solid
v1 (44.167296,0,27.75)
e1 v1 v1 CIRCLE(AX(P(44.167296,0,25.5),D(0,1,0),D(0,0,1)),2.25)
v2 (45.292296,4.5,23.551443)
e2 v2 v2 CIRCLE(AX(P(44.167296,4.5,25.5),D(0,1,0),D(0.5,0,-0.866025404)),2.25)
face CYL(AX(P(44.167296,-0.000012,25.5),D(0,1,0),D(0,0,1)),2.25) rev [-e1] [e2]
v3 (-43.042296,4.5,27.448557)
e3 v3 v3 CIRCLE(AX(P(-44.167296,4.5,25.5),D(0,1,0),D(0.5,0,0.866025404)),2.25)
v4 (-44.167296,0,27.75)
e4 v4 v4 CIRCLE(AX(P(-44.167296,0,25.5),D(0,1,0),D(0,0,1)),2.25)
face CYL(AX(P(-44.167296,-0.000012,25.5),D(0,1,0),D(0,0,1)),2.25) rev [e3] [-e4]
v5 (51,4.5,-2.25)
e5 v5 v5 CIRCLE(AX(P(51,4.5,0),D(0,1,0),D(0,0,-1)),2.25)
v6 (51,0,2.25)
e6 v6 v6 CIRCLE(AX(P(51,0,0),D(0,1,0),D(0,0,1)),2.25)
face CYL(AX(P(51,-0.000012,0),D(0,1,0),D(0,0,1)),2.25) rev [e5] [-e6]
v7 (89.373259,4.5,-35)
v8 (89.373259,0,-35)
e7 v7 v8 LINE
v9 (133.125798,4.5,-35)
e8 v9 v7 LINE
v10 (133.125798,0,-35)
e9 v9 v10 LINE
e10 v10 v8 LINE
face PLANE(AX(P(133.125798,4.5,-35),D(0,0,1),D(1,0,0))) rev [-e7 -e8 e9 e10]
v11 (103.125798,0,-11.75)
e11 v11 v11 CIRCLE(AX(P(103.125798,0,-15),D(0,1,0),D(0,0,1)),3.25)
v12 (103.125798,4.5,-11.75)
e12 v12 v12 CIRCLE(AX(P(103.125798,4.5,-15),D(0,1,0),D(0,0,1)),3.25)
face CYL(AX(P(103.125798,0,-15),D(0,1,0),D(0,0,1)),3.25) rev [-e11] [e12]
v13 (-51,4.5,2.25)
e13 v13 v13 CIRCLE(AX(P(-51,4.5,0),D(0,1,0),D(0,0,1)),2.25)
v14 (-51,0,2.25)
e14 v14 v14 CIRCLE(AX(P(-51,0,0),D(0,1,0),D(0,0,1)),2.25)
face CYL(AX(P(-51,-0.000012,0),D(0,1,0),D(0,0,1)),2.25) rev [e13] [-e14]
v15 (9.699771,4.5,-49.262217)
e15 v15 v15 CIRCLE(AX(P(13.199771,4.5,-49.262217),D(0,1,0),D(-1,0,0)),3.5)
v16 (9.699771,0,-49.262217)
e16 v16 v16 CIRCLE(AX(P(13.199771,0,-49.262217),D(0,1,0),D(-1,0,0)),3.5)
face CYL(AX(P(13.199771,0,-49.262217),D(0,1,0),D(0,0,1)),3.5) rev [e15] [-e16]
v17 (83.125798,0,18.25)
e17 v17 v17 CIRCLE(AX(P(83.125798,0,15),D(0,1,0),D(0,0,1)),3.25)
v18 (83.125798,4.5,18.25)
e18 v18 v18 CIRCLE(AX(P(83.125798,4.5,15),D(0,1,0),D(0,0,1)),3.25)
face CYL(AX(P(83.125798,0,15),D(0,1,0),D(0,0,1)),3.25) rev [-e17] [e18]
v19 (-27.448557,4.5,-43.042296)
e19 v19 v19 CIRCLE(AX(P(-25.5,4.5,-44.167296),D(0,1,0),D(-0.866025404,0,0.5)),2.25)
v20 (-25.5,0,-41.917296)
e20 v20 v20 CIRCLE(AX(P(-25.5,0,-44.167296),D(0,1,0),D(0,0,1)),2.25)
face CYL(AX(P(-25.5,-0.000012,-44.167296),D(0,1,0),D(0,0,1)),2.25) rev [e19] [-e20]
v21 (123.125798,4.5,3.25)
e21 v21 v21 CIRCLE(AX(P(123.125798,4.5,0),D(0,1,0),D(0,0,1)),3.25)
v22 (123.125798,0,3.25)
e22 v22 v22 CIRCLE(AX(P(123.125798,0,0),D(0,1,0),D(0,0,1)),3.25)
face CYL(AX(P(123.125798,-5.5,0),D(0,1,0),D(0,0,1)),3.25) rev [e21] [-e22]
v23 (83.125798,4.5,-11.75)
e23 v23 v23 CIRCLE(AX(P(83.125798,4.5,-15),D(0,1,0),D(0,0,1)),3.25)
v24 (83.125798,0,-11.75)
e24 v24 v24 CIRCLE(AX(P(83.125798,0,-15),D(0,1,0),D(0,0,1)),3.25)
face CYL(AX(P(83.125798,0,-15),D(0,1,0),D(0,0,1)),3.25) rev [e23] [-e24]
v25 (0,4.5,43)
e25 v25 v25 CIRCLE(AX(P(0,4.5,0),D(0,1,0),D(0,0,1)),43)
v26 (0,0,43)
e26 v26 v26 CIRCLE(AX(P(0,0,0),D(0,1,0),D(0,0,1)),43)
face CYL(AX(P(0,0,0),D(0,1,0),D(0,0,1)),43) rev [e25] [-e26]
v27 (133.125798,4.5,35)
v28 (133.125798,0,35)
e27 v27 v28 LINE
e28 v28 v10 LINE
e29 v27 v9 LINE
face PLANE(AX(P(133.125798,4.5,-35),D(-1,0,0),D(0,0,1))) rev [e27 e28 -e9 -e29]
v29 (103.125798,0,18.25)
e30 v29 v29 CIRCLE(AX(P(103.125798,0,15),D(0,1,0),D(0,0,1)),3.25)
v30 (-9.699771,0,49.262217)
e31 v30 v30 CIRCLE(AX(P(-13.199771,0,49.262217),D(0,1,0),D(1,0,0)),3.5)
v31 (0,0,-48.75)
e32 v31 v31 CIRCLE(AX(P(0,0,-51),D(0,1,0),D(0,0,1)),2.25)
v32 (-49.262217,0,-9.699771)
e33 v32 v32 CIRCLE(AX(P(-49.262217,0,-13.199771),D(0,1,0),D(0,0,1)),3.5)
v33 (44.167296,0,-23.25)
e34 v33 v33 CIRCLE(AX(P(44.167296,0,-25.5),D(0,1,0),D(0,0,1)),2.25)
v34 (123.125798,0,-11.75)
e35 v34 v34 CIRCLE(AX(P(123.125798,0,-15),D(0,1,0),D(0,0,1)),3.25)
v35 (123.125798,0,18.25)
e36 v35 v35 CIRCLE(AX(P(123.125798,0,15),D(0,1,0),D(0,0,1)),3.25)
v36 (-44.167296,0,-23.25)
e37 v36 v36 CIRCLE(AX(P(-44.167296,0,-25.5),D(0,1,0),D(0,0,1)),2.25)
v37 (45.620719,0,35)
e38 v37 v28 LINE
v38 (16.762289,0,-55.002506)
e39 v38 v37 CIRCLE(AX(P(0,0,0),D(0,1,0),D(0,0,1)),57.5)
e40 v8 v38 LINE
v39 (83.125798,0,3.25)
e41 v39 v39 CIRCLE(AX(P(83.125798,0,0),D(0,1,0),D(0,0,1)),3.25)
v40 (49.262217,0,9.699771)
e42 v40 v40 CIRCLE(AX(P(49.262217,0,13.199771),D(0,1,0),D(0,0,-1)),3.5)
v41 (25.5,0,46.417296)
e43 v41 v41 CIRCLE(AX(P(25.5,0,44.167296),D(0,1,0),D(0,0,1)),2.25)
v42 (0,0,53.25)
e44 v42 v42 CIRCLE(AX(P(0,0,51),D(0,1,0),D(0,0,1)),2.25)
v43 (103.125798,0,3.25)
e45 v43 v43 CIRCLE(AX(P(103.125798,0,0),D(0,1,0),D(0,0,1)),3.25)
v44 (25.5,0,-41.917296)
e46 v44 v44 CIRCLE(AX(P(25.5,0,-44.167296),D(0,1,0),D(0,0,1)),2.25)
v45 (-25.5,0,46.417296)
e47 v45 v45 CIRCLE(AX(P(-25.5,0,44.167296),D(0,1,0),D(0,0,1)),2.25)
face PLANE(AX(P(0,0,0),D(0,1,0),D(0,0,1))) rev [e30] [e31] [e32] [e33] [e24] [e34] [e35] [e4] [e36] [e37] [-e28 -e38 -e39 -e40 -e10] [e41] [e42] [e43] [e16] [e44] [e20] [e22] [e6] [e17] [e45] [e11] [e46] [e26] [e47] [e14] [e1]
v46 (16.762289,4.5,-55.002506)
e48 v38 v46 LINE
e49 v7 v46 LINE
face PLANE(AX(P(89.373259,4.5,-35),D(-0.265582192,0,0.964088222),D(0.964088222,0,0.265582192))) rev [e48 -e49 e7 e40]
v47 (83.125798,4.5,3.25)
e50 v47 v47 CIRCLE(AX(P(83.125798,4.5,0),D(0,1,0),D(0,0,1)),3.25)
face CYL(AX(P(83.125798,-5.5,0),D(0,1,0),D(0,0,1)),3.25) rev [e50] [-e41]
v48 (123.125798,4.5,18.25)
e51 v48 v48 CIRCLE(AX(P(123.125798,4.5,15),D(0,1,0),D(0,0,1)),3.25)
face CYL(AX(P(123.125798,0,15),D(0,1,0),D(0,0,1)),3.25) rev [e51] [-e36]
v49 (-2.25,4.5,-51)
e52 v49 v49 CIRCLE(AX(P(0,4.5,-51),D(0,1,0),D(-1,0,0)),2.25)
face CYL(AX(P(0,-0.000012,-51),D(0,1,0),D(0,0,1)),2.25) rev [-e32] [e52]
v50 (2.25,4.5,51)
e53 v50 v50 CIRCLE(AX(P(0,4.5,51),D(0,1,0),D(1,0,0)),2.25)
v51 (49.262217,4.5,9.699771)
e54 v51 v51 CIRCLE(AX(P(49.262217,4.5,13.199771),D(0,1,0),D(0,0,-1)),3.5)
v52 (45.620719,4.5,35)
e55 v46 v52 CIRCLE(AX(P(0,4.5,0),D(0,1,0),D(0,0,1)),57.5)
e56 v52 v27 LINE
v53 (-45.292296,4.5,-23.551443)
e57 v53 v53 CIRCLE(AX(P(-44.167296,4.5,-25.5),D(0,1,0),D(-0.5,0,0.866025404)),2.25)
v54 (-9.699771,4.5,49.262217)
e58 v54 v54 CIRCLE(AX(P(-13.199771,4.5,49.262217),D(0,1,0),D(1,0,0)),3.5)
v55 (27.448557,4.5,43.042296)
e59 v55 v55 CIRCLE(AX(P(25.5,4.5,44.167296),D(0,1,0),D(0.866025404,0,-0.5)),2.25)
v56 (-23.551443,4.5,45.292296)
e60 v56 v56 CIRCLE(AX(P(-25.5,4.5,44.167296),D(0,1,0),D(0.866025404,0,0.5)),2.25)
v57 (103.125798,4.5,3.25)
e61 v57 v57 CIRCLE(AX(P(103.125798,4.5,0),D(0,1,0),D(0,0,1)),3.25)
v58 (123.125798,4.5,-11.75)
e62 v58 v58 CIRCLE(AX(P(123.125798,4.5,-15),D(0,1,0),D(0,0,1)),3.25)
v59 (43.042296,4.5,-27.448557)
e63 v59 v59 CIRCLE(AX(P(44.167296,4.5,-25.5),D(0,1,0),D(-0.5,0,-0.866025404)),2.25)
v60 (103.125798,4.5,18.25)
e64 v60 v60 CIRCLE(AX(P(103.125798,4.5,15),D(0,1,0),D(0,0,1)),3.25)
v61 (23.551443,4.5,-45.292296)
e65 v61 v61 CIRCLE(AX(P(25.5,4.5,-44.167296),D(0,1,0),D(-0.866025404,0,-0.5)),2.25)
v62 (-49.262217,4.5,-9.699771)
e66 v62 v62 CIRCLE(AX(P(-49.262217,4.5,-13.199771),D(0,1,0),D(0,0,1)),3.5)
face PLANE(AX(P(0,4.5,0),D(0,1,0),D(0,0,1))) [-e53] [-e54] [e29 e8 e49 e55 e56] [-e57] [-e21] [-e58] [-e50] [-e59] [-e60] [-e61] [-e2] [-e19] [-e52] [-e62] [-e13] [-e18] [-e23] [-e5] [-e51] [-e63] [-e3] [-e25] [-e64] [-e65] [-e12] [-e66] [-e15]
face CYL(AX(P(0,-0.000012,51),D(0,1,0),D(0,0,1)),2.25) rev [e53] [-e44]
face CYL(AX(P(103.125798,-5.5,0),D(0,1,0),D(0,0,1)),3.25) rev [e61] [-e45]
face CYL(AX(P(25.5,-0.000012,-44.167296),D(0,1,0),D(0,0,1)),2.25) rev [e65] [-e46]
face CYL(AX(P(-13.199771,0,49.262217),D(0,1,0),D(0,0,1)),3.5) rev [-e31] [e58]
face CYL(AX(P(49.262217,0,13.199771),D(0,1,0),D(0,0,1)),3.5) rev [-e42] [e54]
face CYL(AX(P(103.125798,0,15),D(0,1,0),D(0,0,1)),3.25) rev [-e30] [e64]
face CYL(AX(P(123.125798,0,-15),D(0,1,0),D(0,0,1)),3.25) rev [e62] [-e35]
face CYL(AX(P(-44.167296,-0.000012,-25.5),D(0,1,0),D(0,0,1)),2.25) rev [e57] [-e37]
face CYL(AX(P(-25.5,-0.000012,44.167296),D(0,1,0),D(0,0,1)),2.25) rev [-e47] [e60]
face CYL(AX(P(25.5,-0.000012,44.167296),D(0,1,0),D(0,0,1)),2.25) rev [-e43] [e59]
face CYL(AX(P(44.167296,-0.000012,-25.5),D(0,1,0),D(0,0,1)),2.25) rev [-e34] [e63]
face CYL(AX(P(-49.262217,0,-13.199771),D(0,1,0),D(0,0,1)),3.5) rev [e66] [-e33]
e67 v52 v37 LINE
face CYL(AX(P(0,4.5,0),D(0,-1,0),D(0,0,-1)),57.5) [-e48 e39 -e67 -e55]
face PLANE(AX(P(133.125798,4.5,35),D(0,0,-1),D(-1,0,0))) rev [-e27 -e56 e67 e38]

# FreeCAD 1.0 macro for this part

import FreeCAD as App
import Part
import Sketcher
Q = App.Units.Quantity

doc = App.newDocument("Part")
body = doc.addObject("PartDesign::Body", "Body")

# Sketch on XZ plane
sketch1 = doc.addObject("Sketcher::SketchObject", "Sketch")
body.addObject(sketch1)
sketch1.AttachmentSupport = (doc.XZ_Plane, [""])
sketch1.MapMode = "FlatFace"
sketch1.addGeometry(Part.Circle(App.Vector(0, 0, 0), App.Vector(0, 0, 1), 58), False)
sketch1.addConstraint([
    Sketcher.Constraint("Coincident", 0, 3, -1, 1),
    Sketcher.Constraint("Diameter", 0, Q("115 mm")),
])
pad1 = doc.addObject("PartDesign::Pad", "Pad")
body.addObject(pad1)
pad1.Profile = sketch1
pad1.Length = 4.5
pad1.Reversed = True

# Sketch on XZ plane
sketch2 = doc.addObject("Sketcher::SketchObject", "Sketch001")
body.addObject(sketch2)
sketch2.AttachmentSupport = (doc.XZ_Plane, [""])
sketch2.MapMode = "FlatFace"
sketch2.addGeometry([
    Part.LineSegment(App.Vector(-7, -35, 0), App.Vector(-7, 35, 0)),
    Part.LineSegment(App.Vector(-7, 35, 0), App.Vector(133, 35, 0)),
    Part.LineSegment(App.Vector(133, 35, 0), App.Vector(133, -35, 0)),
    Part.LineSegment(App.Vector(133, -35, 0), App.Vector(-7, -35, 0)),
], False)
sketch2.addConstraint([
    Sketcher.Constraint("Coincident", 0, 2, 1, 1),
    Sketcher.Constraint("Coincident", 1, 2, 2, 1),
    Sketcher.Constraint("Coincident", 2, 2, 3, 1),
    Sketcher.Constraint("Coincident", 3, 2, 0, 1),
    Sketcher.Constraint("Vertical", 0),
    Sketcher.Constraint("Horizontal", 1),
    Sketcher.Constraint("Vertical", 2),
    Sketcher.Constraint("Horizontal", 3),
    Sketcher.Constraint("DistanceX", 1, 1, 1, 2, Q("140 mm")),
    Sketcher.Constraint("DistanceY", 0, 1, 0, 2, Q("70 mm")),
    Sketcher.Constraint("DistanceY", -1, 1, 0, 2, Q("35 mm")),
    Sketcher.Constraint("DistanceX", 0, 2, -1, 1, Q("6.874202 mm")),
])
pad2 = doc.addObject("PartDesign::Pad", "Pad001")
body.addObject(pad2)
pad2.Profile = sketch2
pad2.Length = 4.5
pad2.Reversed = True

# Sketch on XZ plane
sketch3 = doc.addObject("Sketcher::SketchObject", "Sketch002")
body.addObject(sketch3)
sketch3.AttachmentSupport = (doc.XZ_Plane, [""])
sketch3.MapMode = "FlatFace"
sketch3.addGeometry([
    Part.LineSegment(App.Vector(89, -35, 0), App.Vector(14, -56, 0)),
    Part.LineSegment(App.Vector(14, -56, 0), App.Vector(14, -14, 0)),
    Part.LineSegment(App.Vector(14, -14, 0), App.Vector(89, -35, 0)),
], False)
sketch3.addConstraint([
    Sketcher.Constraint("Coincident", 0, 2, 1, 1),
    Sketcher.Constraint("Coincident", 1, 2, 2, 1),
    Sketcher.Constraint("Coincident", 2, 2, 0, 1),
    Sketcher.Constraint("Vertical", 1),
    Sketcher.Constraint("DistanceY", 2, 2, -1, 1, Q("35 mm")),
    Sketcher.Constraint("DistanceY", 1, 1, 1, 2, Q("42.268461 mm")),
    Sketcher.Constraint("Distance", 0, Q("78.420969 mm")),
    Sketcher.Constraint("DistanceY", 1, 2, -1, 1, Q("13.558752 mm")),
    Sketcher.Constraint("DistanceX", -1, 1, 2, 2, Q("89.373259 mm")),
])
pad3 = doc.addObject("PartDesign::Pad", "Pad002")
body.addObject(pad3)
pad3.Profile = sketch3
pad3.Length = 4.5
pad3.Reversed = True

# Sketch on XZ plane
sketch4 = doc.addObject("Sketcher::SketchObject", "Sketch003")
body.addObject(sketch4)
sketch4.AttachmentSupport = (doc.XZ_Plane, [""])
sketch4.MapMode = "FlatFace"
sketch4.AttachmentOffset = App.Placement(App.Vector(0, 0, -4.5), App.Rotation())
sketch4.addGeometry(Part.Circle(App.Vector(0, 0, 0), App.Vector(0, 0, 1), 43), False)
sketch4.addConstraint([
    Sketcher.Constraint("Coincident", 0, 3, -1, 1),
    Sketcher.Constraint("Diameter", 0, Q("86 mm")),
])
pocket1 = doc.addObject("PartDesign::Pocket", "Pocket")
body.addObject(pocket1)
pocket1.Profile = sketch4
pocket1.Type = "ThroughAll"
pocket1.Reversed = True

# Sketch on XZ plane
sketch5 = doc.addObject("Sketcher::SketchObject", "Sketch004")
body.addObject(sketch5)
sketch5.AttachmentSupport = (doc.XZ_Plane, [""])
sketch5.MapMode = "FlatFace"
sketch5.AttachmentOffset = App.Placement(App.Vector(0, 0, -4.5), App.Rotation())
sketch5.addGeometry([
    Part.Circle(App.Vector(123.1, -15, 0), App.Vector(0, 0, 1), 3.2),
    Part.Circle(App.Vector(123.1, 15, 0), App.Vector(0, 0, 1), 3.2),
], False)
sketch5.addConstraint([
    Sketcher.Constraint("Equal", 0, 1),
    Sketcher.Constraint("Symmetric", 0, 3, 1, 3, -1),
    Sketcher.Constraint("Diameter", 0, Q("6.5 mm")),
    Sketcher.Constraint("DistanceY", 0, 3, -1, 1, Q("15 mm")),
    Sketcher.Constraint("DistanceX", -1, 1, 0, 3, Q("123.125798 mm")),
])
pocket2 = doc.addObject("PartDesign::Pocket", "Pocket001")
body.addObject(pocket2)
pocket2.Profile = sketch5
pocket2.Type = "ThroughAll"
pocket2.Reversed = True
doc.recompute()

linearpattern = doc.addObject("PartDesign::LinearPattern", "LinearPattern")
body.addObject(linearpattern)
linearpattern.Originals = [pocket2]
linearpattern.Direction = (doc.X_Axis, [""])
linearpattern.Mode = "offset"
linearpattern.Offset = 20
linearpattern.Occurrences = 3
linearpattern.Reversed = True
body.Tip = linearpattern

# Sketch on XZ plane
sketch6 = doc.addObject("Sketcher::SketchObject", "Sketch005")
body.addObject(sketch6)
sketch6.AttachmentSupport = (doc.XZ_Plane, [""])
sketch6.MapMode = "FlatFace"
sketch6.AttachmentOffset = App.Placement(App.Vector(0, 0, 1), App.Rotation())
sketch6.addGeometry(Part.Circle(App.Vector(-51, 0, 0), App.Vector(0, 0, 1), 2.2), False)
sketch6.addConstraint([
    Sketcher.Constraint("PointOnObject", 0, 3, -1),
    Sketcher.Constraint("Diameter", 0, Q("4.5 mm")),
    Sketcher.Constraint("DistanceX", 0, 3, -1, 1, Q("51 mm")),
])
pocket3 = doc.addObject("PartDesign::Pocket", "Pocket002")
body.addObject(pocket3)
pocket3.Profile = sketch6
pocket3.Length = 6.5
doc.recompute()

polarpattern = doc.addObject("PartDesign::PolarPattern", "PolarPattern")
body.addObject(polarpattern)
polarpattern.Originals = [pocket3]
polarpattern.Axis = (doc.Y_Axis, [""])
polarpattern.Angle = 360
polarpattern.Occurrences = 12
body.Tip = polarpattern

# Sketch on XZ plane
sketch7 = doc.addObject("Sketcher::SketchObject", "Sketch006")
body.addObject(sketch7)
sketch7.AttachmentSupport = (doc.XZ_Plane, [""])
sketch7.MapMode = "FlatFace"
sketch7.AttachmentOffset = App.Placement(App.Vector(0, 0, -4.5), App.Rotation())
sketch7.addGeometry(Part.Circle(App.Vector(-49.3, -13.2, 0), App.Vector(0, 0, 1), 3.5), False)
sketch7.addConstraint([
    Sketcher.Constraint("Diameter", 0, Q("7 mm")),
    Sketcher.Constraint("DistanceY", 0, 3, -1, 1, Q("13.199771 mm")),
    Sketcher.Constraint("DistanceX", 0, 3, -1, 1, Q("49.262217 mm")),
])
pocket4 = doc.addObject("PartDesign::Pocket", "Pocket003")
body.addObject(pocket4)
pocket4.Profile = sketch7
pocket4.Type = "ThroughAll"
pocket4.Reversed = True
doc.recompute()

polarpattern2 = doc.addObject("PartDesign::PolarPattern", "PolarPattern001")
body.addObject(polarpattern2)
polarpattern2.Originals = [pocket4]
polarpattern2.Axis = (doc.Y_Axis, [""])
polarpattern2.Angle = 360
polarpattern2.Occurrences = 4
body.Tip = polarpattern2

# Sketch on XZ plane
sketch8 = doc.addObject("Sketcher::SketchObject", "Sketch007")
body.addObject(sketch8)
sketch8.AttachmentSupport = (doc.XZ_Plane, [""])
sketch8.MapMode = "FlatFace"
sketch8.AttachmentOffset = App.Placement(App.Vector(0, 0, -4.5), App.Rotation())
sketch8.addGeometry(Part.Circle(App.Vector(123.1, 0, 0), App.Vector(0, 0, 1), 3.2), False)
sketch8.addConstraint([
    Sketcher.Constraint("PointOnObject", 0, 3, -1),
    Sketcher.Constraint("Diameter", 0, Q("6.5 mm")),
    Sketcher.Constraint("DistanceX", -1, 1, 0, 3, Q("123.125798 mm")),
])
pocket5 = doc.addObject("PartDesign::Pocket", "Pocket004")
body.addObject(pocket5)
pocket5.Profile = sketch8
pocket5.Length = 10
pocket5.Reversed = True
doc.recompute()

linearpattern2 = doc.addObject("PartDesign::LinearPattern", "LinearPattern001")
body.addObject(linearpattern2)
linearpattern2.Originals = [pocket5]
linearpattern2.Direction = (doc.X_Axis, [""])
linearpattern2.Mode = "offset"
linearpattern2.Offset = 20
linearpattern2.Occurrences = 3
linearpattern2.Reversed = True
body.Tip = linearpattern2

doc.recompute()
